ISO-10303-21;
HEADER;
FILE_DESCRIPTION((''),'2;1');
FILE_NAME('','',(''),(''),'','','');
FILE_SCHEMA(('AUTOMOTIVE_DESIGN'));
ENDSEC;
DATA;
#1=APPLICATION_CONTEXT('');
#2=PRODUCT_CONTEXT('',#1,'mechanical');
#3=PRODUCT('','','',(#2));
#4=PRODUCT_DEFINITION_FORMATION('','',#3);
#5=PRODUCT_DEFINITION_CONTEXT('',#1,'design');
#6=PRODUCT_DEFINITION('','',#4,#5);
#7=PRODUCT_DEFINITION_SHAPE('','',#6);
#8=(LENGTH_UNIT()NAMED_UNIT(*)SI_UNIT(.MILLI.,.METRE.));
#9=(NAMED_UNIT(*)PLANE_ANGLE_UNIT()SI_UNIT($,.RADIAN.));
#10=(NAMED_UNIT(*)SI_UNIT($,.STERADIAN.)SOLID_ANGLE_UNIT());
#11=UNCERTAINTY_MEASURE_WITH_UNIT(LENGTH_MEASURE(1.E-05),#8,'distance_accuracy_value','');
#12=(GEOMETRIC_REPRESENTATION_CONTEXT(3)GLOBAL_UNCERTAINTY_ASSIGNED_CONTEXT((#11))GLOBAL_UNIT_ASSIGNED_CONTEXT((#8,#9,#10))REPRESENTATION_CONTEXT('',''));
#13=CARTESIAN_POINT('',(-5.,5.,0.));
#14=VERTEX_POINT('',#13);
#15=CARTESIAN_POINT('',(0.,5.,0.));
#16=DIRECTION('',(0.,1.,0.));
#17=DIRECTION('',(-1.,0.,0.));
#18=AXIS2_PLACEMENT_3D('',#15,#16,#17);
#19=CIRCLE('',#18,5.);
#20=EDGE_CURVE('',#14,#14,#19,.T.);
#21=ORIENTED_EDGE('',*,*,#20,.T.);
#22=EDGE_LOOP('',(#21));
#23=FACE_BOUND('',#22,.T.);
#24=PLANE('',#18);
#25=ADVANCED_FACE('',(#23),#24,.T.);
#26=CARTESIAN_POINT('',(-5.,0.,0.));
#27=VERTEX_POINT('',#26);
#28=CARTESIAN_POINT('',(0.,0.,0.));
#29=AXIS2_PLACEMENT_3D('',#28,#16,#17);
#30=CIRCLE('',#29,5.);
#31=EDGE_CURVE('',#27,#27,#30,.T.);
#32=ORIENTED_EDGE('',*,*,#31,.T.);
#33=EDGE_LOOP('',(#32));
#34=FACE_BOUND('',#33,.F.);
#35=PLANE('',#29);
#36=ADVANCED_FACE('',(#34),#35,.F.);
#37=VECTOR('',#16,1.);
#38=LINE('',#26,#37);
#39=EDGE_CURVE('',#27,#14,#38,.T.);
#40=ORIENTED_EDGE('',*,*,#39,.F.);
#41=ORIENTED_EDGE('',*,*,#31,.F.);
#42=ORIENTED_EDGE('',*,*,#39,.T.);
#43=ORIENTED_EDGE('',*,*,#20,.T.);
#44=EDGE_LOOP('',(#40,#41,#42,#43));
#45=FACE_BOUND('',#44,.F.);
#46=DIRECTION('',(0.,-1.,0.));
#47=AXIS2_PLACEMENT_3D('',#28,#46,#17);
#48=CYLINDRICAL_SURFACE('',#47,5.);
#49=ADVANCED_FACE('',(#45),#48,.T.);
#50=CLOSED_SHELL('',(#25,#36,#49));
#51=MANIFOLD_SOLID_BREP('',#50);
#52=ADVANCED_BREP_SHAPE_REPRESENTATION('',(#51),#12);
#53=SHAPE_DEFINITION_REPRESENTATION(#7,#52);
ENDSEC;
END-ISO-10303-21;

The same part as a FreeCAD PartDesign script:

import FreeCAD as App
import Part
import Sketcher
from FreeCAD import Vector

doc = App.newDocument("Part")
body = doc.addObject("PartDesign::Body", "Body")

# Sketch on XZ plane
sketch1 = doc.addObject("Sketcher::SketchObject", "Sketch")
body.addObject(sketch1)
sketch1.AttachmentSupport = (doc.XZ_Plane, [""])
sketch1.MapMode = "FlatFace"
sketch1.addGeometry(Part.Circle(Vector(0, 0, 0), Vector(0, 0, 1), 5), False)
sketch1.addConstraint(Sketcher.Constraint("Coincident", 0, 3, -1, 1))
sketch1.addConstraint(Sketcher.Constraint("Diameter", 0, 10.0))
pad1 = doc.addObject("PartDesign::Pad", "Pad")
body.addObject(pad1)
pad1.Profile = sketch1
pad1.Length = 5
pad1.Reversed = True

doc.recompute()
